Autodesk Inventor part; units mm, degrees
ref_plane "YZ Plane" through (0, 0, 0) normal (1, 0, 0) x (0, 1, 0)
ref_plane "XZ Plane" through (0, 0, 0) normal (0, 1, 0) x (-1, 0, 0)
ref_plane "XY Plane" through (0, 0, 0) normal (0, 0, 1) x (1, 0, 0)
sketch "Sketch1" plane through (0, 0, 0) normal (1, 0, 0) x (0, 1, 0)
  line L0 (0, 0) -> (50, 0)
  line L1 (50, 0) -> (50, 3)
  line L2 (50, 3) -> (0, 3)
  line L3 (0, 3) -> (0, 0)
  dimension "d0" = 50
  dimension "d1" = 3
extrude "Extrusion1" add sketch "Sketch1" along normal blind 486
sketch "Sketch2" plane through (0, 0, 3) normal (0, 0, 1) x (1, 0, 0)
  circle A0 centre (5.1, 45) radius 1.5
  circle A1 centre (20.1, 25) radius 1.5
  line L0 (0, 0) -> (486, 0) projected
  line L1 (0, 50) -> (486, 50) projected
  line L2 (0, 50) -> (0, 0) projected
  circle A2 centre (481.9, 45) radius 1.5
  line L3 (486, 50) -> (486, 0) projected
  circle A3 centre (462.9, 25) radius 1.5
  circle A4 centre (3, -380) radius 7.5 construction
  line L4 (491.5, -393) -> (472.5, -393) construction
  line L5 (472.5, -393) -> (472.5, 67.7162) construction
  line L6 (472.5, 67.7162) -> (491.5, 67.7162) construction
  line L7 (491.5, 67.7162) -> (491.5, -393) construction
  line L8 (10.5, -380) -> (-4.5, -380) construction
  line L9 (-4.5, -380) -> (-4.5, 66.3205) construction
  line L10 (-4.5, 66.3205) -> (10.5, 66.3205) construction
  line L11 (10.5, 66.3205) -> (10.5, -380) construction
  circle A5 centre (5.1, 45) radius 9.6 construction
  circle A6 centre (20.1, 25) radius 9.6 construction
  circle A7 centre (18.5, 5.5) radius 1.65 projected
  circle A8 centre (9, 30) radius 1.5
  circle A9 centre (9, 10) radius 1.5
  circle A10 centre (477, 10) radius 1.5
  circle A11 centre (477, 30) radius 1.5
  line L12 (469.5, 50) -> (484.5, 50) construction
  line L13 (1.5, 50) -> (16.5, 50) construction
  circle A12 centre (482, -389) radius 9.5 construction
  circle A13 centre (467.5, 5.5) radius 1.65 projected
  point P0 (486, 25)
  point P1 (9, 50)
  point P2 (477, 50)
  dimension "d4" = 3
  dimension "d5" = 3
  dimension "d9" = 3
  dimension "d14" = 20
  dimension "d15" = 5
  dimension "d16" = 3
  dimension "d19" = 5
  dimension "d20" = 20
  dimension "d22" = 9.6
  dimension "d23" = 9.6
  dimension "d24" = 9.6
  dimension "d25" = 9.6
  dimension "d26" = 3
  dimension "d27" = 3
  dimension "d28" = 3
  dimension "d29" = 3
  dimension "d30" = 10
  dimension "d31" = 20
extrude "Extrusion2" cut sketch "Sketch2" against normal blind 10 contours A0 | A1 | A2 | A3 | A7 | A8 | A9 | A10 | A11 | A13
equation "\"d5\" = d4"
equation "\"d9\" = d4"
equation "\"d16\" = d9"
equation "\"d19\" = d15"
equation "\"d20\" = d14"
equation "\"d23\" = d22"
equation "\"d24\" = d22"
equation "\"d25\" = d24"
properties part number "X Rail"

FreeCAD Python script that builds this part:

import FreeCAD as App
import Part
import Sketcher

doc = App.newDocument("Part")
body = doc.addObject("PartDesign::Body", "Body")

sketch1 = doc.addObject("Sketcher::SketchObject", "Sketch")
body.addObject(sketch1)
sketch1.AttachmentSupport = (doc.YZ_Plane, [""])
sketch1.MapMode = "FlatFace"
sketch1.addGeometry(Part.LineSegment(App.Vector(0, 3, 0), App.Vector(0, 0, 0)), False)
sketch1.addGeometry(Part.LineSegment(App.Vector(0, 0, 0), App.Vector(50, 0, 0)), False)
sketch1.addGeometry(Part.LineSegment(App.Vector(50, 0, 0), App.Vector(50, 3, 0)), False)
sketch1.addGeometry(Part.LineSegment(App.Vector(50, 3, 0), App.Vector(0, 3, 0)), False)
sketch1.addConstraint(Sketcher.Constraint("Coincident", 0, 2, 1, 1))
sketch1.addConstraint(Sketcher.Constraint("Coincident", 1, 2, 2, 1))
sketch1.addConstraint(Sketcher.Constraint("Coincident", 2, 2, 3, 1))
sketch1.addConstraint(Sketcher.Constraint("Coincident", 3, 2, 0, 1))
sketch1.addConstraint(Sketcher.Constraint("Vertical", 0))
sketch1.addConstraint(Sketcher.Constraint("Horizontal", 1))
sketch1.addConstraint(Sketcher.Constraint("Vertical", 2))
sketch1.addConstraint(Sketcher.Constraint("Horizontal", 3))
sketch1.addConstraint(Sketcher.Constraint("Coincident", 0, 2, -1, 1))
sketch1.addConstraint(Sketcher.Constraint("DistanceX", 1, 1, 1, 2, 50.0))
sketch1.addConstraint(Sketcher.Constraint("DistanceY", 0, 2, 0, 1, 3.0))
pad1 = doc.addObject("PartDesign::Pad", "Pad")
body.addObject(pad1)
pad1.Profile = sketch1
pad1.Length = 486

sketch2 = doc.addObject("Sketcher::SketchObject", "Sketch001")
body.addObject(sketch2)
sketch2.AttachmentSupport = (doc.XY_Plane, [""])
sketch2.MapMode = "FlatFace"
sketch2.AttachmentOffset = App.Placement(App.Vector(0, 0, 3), App.Rotation())
sketch2.addGeometry(Part.Circle(App.Vector(5.1, 45, 0), App.Vector(0, 0, 1), 1.5), False)
sketch2.addGeometry(Part.Circle(App.Vector(20.1, 25, 0), App.Vector(0, 0, 1), 1.5), False)
sketch2.addGeometry(Part.Circle(App.Vector(481.9, 45, 0), App.Vector(0, 0, 1), 1.5), False)
sketch2.addGeometry(Part.Circle(App.Vector(462.9, 25, 0), App.Vector(0, 0, 1), 1.5), False)
sketch2.addGeometry(Part.Circle(App.Vector(18.5, 5.5, 0), App.Vector(0, 0, 1), 1.65), False)
sketch2.addGeometry(Part.Circle(App.Vector(9, 30, 0), App.Vector(0, 0, 1), 1.5), False)
sketch2.addGeometry(Part.Circle(App.Vector(9, 10, 0), App.Vector(0, 0, 1), 1.5), False)
sketch2.addGeometry(Part.Circle(App.Vector(477, 10, 0), App.Vector(0, 0, 1), 1.5), False)
sketch2.addGeometry(Part.Circle(App.Vector(477, 30, 0), App.Vector(0, 0, 1), 1.5), False)
sketch2.addGeometry(Part.Circle(App.Vector(467.5, 5.5, 0), App.Vector(0, 0, 1), 1.65), False)
sketch2.addConstraint(Sketcher.Constraint("Equal", 0, 1))
sketch2.addConstraint(Sketcher.Constraint("Equal", 1, 2))
sketch2.addConstraint(Sketcher.Constraint("Equal", 2, 3))
sketch2.addConstraint(Sketcher.Constraint("Equal", 3, 5))
sketch2.addConstraint(Sketcher.Constraint("Equal", 5, 6))
sketch2.addConstraint(Sketcher.Constraint("Equal", 6, 7))
sketch2.addConstraint(Sketcher.Constraint("Equal", 7, 8))
sketch2.addConstraint(Sketcher.Constraint("Equal", 4, 9))
sketch2.addConstraint(Sketcher.Constraint("Horizontal", 0, 3, 2, 3))
sketch2.addConstraint(Sketcher.Constraint("Horizontal", 1, 3, 3, 3))
sketch2.addConstraint(Sketcher.Constraint("Horizontal", 6, 3, 7, 3))
sketch2.addConstraint(Sketcher.Constraint("Horizontal", 5, 3, 8, 3))
sketch2.addConstraint(Sketcher.Constraint("Horizontal", 4, 3, 9, 3))
sketch2.addConstraint(Sketcher.Constraint("Vertical", 5, 3, 6, 3))
sketch2.addConstraint(Sketcher.Constraint("Vertical", 7, 3, 8, 3))
sketch2.addConstraint(Sketcher.Constraint("Diameter", 0, 3.0))
sketch2.addConstraint(Sketcher.Constraint("DistanceY", -1, 1, 6, 3, 10.0))
sketch2.addConstraint(Sketcher.Constraint("DistanceY", 1, 3, 0, 3, 20.0))
sketch2.addConstraint(Sketcher.Constraint("DistanceY", 1, 3, 5, 3, 5.0))
sketch2.addConstraint(Sketcher.Constraint("DistanceY", 6, 3, 5, 3, 20.0))
sketch2.addConstraint(Sketcher.Constraint("Diameter", 4, 3.3))
sketch2.addConstraint(Sketcher.Constraint("DistanceX", -1, 1, 5, 3, 9.0))
sketch2.addConstraint(Sketcher.Constraint("DistanceX", -1, 1, 7, 3, 477.0))
sketch2.addConstraint(Sketcher.Constraint("DistanceX", 0, 3, 1, 3, 15.0))
sketch2.addConstraint(Sketcher.Constraint("DistanceX", 3, 3, 2, 3, 19.0))
sketch2.addConstraint(Sketcher.Constraint("DistanceX", -1, 1, 0, 3, 5.1))
sketch2.addConstraint(Sketcher.Constraint("DistanceX", -1, 1, 2, 3, 481.9))
sketch2.addConstraint(Sketcher.Constraint("DistanceX", -1, 1, 4, 3, 18.5))
sketch2.addConstraint(Sketcher.Constraint("DistanceY", -1, 1, 4, 3, 5.5))
sketch2.addConstraint(Sketcher.Constraint("DistanceX", -1, 1, 9, 3, 467.5))
pocket1 = doc.addObject("PartDesign::Pocket", "Pocket")
body.addObject(pocket1)
pocket1.Profile = sketch2
pocket1.Length = 10

doc.recompute()
